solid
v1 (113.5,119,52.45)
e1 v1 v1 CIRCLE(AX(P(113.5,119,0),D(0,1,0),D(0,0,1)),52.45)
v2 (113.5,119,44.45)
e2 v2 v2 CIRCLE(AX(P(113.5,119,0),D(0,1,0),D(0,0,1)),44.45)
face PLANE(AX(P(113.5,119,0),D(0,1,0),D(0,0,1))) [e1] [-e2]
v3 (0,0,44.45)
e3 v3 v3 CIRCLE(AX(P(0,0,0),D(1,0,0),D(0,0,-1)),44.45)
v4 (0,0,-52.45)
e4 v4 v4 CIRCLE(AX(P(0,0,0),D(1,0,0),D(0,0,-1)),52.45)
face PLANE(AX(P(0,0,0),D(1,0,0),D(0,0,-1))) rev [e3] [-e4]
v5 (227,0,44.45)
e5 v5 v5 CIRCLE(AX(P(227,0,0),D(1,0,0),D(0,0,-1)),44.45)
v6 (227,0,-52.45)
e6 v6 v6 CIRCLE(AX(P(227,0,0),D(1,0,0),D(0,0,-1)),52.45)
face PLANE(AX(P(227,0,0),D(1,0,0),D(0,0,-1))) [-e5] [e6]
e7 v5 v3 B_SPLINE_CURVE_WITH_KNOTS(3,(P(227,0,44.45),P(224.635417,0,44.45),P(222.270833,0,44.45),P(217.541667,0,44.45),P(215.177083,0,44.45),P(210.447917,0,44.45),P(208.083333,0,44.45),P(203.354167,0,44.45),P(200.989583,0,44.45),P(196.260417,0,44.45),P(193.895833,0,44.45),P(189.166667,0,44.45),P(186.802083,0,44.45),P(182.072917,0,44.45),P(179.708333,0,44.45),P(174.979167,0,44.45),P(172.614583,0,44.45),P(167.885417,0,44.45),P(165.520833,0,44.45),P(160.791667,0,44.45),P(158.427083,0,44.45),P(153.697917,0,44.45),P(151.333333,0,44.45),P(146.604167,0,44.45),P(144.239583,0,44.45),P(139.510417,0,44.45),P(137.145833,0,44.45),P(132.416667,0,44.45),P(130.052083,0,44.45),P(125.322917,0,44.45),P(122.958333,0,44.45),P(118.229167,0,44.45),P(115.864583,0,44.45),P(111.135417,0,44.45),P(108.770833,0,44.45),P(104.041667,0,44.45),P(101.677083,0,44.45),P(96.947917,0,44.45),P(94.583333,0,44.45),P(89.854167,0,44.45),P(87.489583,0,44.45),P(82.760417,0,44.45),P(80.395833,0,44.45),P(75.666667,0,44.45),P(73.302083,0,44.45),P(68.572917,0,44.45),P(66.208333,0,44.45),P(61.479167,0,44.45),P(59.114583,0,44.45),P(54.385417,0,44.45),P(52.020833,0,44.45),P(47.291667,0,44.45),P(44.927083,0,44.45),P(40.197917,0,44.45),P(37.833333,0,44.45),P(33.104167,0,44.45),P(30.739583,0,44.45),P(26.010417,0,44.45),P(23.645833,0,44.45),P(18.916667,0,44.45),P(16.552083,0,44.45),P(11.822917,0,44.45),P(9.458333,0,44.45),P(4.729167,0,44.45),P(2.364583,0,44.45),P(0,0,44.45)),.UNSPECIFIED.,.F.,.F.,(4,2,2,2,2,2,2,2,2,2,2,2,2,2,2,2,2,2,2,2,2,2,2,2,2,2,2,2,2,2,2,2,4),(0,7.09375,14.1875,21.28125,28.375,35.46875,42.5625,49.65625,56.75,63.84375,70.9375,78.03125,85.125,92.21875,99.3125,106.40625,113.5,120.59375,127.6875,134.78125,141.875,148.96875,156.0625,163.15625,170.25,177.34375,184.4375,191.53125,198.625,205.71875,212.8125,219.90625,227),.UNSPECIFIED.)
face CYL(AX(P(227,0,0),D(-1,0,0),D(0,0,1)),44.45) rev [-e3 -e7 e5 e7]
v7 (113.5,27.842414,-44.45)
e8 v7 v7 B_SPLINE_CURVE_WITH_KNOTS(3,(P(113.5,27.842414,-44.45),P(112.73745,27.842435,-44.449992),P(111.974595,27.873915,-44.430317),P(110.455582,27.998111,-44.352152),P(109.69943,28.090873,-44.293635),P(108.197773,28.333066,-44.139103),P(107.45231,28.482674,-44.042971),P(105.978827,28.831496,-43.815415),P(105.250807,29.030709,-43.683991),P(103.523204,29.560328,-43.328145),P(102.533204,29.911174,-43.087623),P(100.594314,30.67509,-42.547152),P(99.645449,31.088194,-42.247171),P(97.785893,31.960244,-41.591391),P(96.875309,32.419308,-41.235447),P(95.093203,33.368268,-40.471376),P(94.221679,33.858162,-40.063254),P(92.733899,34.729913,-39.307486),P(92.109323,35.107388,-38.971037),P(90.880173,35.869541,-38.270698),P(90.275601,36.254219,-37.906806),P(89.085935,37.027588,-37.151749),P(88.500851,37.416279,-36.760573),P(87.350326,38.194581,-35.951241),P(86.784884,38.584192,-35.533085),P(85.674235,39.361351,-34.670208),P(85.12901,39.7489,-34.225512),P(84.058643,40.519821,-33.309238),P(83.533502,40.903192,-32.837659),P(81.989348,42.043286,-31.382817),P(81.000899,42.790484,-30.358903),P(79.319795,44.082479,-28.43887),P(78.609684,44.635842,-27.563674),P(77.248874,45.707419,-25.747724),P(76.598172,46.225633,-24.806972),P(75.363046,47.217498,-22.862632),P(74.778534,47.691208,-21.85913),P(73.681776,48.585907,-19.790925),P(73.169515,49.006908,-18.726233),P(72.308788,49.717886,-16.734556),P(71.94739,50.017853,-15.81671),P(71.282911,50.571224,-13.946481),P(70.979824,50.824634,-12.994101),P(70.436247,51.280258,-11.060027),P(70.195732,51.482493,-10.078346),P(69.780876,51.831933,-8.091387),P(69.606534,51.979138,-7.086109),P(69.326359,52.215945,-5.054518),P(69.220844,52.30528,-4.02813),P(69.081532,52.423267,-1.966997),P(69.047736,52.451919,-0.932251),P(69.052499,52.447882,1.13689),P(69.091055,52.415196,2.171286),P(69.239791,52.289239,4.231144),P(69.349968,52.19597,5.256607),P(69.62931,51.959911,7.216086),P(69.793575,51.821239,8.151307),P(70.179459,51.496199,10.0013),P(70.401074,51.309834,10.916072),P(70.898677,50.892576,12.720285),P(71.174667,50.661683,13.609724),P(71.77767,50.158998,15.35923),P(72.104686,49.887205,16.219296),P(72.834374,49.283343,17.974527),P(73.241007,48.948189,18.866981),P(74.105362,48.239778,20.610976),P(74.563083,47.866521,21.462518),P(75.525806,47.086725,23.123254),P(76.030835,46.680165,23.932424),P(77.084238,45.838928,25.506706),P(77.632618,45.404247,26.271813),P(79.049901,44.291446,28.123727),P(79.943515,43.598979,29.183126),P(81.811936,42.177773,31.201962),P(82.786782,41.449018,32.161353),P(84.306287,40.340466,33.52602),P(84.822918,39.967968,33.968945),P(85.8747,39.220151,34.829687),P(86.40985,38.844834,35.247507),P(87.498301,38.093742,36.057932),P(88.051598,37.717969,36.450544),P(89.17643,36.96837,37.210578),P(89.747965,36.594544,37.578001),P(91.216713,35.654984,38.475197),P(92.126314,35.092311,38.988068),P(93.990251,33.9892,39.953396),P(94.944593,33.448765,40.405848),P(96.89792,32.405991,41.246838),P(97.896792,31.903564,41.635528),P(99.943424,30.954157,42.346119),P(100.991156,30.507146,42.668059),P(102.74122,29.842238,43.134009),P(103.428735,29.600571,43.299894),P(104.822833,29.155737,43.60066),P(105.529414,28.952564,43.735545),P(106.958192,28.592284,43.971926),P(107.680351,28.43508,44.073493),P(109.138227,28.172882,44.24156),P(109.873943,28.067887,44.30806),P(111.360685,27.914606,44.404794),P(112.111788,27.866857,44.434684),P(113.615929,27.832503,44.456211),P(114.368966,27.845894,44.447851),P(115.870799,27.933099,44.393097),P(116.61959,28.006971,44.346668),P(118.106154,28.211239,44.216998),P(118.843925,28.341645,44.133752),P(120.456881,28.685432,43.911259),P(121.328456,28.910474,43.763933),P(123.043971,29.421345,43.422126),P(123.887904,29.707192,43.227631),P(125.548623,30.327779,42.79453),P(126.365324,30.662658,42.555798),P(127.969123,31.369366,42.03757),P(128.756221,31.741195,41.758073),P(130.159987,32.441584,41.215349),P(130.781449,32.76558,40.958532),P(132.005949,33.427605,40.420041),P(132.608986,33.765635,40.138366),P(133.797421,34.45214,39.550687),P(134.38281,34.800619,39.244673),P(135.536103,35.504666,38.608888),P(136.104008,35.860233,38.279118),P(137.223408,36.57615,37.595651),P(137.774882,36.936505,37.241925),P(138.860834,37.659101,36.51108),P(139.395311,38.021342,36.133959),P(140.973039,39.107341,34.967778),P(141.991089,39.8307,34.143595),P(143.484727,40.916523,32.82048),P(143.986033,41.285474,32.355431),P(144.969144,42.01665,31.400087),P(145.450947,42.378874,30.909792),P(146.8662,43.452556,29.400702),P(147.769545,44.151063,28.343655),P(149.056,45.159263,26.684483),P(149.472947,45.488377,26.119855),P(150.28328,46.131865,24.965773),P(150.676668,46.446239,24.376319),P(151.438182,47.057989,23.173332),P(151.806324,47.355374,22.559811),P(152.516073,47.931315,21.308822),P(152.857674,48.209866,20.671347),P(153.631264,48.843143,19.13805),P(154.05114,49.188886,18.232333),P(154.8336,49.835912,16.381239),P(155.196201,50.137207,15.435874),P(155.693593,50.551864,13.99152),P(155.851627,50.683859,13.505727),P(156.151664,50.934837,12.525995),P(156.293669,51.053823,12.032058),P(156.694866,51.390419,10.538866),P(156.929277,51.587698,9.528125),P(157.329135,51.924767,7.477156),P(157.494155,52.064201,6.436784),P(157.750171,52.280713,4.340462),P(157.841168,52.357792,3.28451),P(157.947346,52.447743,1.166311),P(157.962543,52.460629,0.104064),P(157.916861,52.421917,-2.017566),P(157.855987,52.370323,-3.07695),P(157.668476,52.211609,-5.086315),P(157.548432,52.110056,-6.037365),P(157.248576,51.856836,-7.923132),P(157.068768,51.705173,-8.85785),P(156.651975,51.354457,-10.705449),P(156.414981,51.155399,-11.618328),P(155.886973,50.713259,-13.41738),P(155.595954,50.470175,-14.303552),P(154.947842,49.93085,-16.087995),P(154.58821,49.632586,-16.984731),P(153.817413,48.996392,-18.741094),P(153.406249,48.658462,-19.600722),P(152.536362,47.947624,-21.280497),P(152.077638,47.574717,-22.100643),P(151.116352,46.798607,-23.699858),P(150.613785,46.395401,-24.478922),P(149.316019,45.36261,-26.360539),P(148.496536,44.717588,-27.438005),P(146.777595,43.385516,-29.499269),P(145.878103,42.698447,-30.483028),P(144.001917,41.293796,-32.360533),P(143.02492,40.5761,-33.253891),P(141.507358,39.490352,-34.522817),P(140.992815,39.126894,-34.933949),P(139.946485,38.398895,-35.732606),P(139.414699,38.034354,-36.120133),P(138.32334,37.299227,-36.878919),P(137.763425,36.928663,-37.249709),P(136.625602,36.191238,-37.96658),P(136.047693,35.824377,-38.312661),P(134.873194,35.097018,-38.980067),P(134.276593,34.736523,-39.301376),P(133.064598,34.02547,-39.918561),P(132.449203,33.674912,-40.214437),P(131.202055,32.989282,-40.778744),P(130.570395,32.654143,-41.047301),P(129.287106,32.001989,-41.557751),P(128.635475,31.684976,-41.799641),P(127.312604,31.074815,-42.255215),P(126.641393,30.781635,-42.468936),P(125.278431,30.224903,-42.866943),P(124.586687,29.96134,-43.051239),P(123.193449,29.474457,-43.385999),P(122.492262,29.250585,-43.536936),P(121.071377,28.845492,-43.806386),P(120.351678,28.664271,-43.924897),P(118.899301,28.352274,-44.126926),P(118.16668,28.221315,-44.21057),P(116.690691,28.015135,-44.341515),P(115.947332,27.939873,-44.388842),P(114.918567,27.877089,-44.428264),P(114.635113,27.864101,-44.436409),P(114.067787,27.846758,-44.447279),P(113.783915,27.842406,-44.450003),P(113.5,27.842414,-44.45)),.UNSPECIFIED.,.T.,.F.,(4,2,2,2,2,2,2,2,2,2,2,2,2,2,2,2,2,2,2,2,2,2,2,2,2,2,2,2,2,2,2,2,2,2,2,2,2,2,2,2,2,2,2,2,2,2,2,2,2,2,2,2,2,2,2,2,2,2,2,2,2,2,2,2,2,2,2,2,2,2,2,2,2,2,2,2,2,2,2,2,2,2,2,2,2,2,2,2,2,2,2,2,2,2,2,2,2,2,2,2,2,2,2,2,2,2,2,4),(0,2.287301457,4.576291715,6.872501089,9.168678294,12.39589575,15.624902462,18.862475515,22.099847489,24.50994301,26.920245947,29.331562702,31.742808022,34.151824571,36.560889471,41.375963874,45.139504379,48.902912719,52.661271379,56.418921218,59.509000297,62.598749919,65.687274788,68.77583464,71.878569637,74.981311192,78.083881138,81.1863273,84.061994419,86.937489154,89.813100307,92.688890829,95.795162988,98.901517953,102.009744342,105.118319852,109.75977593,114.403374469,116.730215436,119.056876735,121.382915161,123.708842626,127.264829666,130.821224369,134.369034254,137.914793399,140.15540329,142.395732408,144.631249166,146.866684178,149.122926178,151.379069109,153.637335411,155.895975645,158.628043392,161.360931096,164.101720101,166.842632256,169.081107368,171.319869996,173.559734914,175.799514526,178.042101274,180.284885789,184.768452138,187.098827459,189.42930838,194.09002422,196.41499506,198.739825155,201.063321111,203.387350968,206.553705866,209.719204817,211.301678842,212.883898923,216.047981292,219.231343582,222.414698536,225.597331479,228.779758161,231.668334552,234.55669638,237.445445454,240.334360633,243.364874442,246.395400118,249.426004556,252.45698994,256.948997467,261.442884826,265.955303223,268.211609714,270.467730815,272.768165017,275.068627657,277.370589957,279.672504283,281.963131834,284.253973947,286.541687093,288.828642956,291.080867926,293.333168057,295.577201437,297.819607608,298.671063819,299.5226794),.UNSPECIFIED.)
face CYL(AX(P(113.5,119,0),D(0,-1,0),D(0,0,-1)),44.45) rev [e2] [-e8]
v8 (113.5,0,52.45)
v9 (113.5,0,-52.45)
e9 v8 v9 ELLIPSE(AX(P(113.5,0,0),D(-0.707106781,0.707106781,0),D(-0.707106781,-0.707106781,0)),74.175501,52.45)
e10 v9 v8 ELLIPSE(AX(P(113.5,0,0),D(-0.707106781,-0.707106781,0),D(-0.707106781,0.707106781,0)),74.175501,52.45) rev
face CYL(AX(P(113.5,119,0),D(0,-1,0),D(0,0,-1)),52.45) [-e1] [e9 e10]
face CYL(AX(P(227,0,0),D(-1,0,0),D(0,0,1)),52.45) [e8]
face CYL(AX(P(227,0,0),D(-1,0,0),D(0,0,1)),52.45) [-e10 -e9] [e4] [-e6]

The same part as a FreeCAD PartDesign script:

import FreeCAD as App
import Part
import Sketcher

V = App.Vector

doc = App.newDocument("Part")
params = doc.addObject("Spreadsheet::Sheet", "Params")
for row, (alias, value) in enumerate([
    ("sketch1_diameter", "104.9 mm"),
    ("sketch1_diameter2", "88.9 mm"),
    ("pad1_length", "227 mm"),
    ("sketch2_diameter", "104.9 mm"),
    ("sketch2_diameter2", "88.9 mm"),
    ("pad2_length", "119 mm"),
    ("sketch3_diameter", "88.9 mm"),
    ("pocket1_length", "227 mm"),
], start=1):
    params.set(f"A{row}", alias)
    params.set(f"B{row}", "=" + value)
    params.setAlias(f"B{row}", alias)

body = doc.addObject("PartDesign::Body", "Body")

# Sketch on YZ plane
sketch1 = doc.addObject("Sketcher::SketchObject", "Sketch")
body.addObject(sketch1)
sketch1.AttachmentSupport = (doc.YZ_Plane, [""])
sketch1.MapMode = "FlatFace"
sketch1.addGeometry([
    Part.Circle(V(0, 0, 0), V(0, 0, 1), 52.45),
    Part.Circle(V(0, 0, 0), V(0, 0, 1), 44.45),
], False)
sketch1.addConstraint([
    Sketcher.Constraint("Coincident", 0, 3, -1, 1),
    Sketcher.Constraint("Coincident", 1, 3, -1, 1),
    Sketcher.Constraint("Diameter", 0, 104.9),
    Sketcher.Constraint("Diameter", 1, 88.9),
])
sketch1.setExpression("Constraints[2]", "Params.sketch1_diameter")
sketch1.setExpression("Constraints[3]", "Params.sketch1_diameter2")
pad1 = doc.addObject("PartDesign::Pad", "Pad")
body.addObject(pad1)
pad1.Profile = sketch1
pad1.setExpression("Length", "Params.pad1_length")

# Sketch on XZ plane
sketch2 = doc.addObject("Sketcher::SketchObject", "Sketch001")
body.addObject(sketch2)
sketch2.AttachmentSupport = (doc.XZ_Plane, [""])
sketch2.MapMode = "FlatFace"
sketch2.addGeometry([
    Part.Circle(V(113.5, 0, 0), V(0, 0, 1), 52.45),
    Part.Circle(V(113.5, 0, 0), V(0, 0, 1), 44.45),
], False)
sketch2.addConstraint([
    Sketcher.Constraint("Coincident", 1, 3, 0, 3),
    Sketcher.Constraint("PointOnObject", 0, 3, -1),
    Sketcher.Constraint("Diameter", 0, 104.9),
    Sketcher.Constraint("Diameter", 1, 88.9),
    Sketcher.Constraint("DistanceX", -1, 1, 0, 3, 113.5),
])
sketch2.setExpression("Constraints[2]", "Params.sketch2_diameter")
sketch2.setExpression("Constraints[3]", "Params.sketch2_diameter2")
pad2 = doc.addObject("PartDesign::Pad", "Pad001")
body.addObject(pad2)
pad2.Profile = sketch2
pad2.setExpression("Length", "Params.pad2_length")
pad2.Reversed = True

# Sketch on YZ plane
sketch3 = doc.addObject("Sketcher::SketchObject", "Sketch002")
body.addObject(sketch3)
sketch3.AttachmentSupport = (doc.YZ_Plane, [""])
sketch3.MapMode = "FlatFace"
sketch3.addGeometry(Part.Circle(V(0, 0, 0), V(0, 0, 1), 44.45), False)
sketch3.addConstraint([
    Sketcher.Constraint("Coincident", 0, 3, -1, 1),
    Sketcher.Constraint("Diameter", 0, 88.9),
])
sketch3.setExpression("Constraints[1]", "Params.sketch3_diameter")
pocket1 = doc.addObject("PartDesign::Pocket", "Pocket")
body.addObject(pocket1)
pocket1.Profile = sketch3
pocket1.setExpression("Length", "Params.pocket1_length")
pocket1.Reversed = True

doc.recompute()
